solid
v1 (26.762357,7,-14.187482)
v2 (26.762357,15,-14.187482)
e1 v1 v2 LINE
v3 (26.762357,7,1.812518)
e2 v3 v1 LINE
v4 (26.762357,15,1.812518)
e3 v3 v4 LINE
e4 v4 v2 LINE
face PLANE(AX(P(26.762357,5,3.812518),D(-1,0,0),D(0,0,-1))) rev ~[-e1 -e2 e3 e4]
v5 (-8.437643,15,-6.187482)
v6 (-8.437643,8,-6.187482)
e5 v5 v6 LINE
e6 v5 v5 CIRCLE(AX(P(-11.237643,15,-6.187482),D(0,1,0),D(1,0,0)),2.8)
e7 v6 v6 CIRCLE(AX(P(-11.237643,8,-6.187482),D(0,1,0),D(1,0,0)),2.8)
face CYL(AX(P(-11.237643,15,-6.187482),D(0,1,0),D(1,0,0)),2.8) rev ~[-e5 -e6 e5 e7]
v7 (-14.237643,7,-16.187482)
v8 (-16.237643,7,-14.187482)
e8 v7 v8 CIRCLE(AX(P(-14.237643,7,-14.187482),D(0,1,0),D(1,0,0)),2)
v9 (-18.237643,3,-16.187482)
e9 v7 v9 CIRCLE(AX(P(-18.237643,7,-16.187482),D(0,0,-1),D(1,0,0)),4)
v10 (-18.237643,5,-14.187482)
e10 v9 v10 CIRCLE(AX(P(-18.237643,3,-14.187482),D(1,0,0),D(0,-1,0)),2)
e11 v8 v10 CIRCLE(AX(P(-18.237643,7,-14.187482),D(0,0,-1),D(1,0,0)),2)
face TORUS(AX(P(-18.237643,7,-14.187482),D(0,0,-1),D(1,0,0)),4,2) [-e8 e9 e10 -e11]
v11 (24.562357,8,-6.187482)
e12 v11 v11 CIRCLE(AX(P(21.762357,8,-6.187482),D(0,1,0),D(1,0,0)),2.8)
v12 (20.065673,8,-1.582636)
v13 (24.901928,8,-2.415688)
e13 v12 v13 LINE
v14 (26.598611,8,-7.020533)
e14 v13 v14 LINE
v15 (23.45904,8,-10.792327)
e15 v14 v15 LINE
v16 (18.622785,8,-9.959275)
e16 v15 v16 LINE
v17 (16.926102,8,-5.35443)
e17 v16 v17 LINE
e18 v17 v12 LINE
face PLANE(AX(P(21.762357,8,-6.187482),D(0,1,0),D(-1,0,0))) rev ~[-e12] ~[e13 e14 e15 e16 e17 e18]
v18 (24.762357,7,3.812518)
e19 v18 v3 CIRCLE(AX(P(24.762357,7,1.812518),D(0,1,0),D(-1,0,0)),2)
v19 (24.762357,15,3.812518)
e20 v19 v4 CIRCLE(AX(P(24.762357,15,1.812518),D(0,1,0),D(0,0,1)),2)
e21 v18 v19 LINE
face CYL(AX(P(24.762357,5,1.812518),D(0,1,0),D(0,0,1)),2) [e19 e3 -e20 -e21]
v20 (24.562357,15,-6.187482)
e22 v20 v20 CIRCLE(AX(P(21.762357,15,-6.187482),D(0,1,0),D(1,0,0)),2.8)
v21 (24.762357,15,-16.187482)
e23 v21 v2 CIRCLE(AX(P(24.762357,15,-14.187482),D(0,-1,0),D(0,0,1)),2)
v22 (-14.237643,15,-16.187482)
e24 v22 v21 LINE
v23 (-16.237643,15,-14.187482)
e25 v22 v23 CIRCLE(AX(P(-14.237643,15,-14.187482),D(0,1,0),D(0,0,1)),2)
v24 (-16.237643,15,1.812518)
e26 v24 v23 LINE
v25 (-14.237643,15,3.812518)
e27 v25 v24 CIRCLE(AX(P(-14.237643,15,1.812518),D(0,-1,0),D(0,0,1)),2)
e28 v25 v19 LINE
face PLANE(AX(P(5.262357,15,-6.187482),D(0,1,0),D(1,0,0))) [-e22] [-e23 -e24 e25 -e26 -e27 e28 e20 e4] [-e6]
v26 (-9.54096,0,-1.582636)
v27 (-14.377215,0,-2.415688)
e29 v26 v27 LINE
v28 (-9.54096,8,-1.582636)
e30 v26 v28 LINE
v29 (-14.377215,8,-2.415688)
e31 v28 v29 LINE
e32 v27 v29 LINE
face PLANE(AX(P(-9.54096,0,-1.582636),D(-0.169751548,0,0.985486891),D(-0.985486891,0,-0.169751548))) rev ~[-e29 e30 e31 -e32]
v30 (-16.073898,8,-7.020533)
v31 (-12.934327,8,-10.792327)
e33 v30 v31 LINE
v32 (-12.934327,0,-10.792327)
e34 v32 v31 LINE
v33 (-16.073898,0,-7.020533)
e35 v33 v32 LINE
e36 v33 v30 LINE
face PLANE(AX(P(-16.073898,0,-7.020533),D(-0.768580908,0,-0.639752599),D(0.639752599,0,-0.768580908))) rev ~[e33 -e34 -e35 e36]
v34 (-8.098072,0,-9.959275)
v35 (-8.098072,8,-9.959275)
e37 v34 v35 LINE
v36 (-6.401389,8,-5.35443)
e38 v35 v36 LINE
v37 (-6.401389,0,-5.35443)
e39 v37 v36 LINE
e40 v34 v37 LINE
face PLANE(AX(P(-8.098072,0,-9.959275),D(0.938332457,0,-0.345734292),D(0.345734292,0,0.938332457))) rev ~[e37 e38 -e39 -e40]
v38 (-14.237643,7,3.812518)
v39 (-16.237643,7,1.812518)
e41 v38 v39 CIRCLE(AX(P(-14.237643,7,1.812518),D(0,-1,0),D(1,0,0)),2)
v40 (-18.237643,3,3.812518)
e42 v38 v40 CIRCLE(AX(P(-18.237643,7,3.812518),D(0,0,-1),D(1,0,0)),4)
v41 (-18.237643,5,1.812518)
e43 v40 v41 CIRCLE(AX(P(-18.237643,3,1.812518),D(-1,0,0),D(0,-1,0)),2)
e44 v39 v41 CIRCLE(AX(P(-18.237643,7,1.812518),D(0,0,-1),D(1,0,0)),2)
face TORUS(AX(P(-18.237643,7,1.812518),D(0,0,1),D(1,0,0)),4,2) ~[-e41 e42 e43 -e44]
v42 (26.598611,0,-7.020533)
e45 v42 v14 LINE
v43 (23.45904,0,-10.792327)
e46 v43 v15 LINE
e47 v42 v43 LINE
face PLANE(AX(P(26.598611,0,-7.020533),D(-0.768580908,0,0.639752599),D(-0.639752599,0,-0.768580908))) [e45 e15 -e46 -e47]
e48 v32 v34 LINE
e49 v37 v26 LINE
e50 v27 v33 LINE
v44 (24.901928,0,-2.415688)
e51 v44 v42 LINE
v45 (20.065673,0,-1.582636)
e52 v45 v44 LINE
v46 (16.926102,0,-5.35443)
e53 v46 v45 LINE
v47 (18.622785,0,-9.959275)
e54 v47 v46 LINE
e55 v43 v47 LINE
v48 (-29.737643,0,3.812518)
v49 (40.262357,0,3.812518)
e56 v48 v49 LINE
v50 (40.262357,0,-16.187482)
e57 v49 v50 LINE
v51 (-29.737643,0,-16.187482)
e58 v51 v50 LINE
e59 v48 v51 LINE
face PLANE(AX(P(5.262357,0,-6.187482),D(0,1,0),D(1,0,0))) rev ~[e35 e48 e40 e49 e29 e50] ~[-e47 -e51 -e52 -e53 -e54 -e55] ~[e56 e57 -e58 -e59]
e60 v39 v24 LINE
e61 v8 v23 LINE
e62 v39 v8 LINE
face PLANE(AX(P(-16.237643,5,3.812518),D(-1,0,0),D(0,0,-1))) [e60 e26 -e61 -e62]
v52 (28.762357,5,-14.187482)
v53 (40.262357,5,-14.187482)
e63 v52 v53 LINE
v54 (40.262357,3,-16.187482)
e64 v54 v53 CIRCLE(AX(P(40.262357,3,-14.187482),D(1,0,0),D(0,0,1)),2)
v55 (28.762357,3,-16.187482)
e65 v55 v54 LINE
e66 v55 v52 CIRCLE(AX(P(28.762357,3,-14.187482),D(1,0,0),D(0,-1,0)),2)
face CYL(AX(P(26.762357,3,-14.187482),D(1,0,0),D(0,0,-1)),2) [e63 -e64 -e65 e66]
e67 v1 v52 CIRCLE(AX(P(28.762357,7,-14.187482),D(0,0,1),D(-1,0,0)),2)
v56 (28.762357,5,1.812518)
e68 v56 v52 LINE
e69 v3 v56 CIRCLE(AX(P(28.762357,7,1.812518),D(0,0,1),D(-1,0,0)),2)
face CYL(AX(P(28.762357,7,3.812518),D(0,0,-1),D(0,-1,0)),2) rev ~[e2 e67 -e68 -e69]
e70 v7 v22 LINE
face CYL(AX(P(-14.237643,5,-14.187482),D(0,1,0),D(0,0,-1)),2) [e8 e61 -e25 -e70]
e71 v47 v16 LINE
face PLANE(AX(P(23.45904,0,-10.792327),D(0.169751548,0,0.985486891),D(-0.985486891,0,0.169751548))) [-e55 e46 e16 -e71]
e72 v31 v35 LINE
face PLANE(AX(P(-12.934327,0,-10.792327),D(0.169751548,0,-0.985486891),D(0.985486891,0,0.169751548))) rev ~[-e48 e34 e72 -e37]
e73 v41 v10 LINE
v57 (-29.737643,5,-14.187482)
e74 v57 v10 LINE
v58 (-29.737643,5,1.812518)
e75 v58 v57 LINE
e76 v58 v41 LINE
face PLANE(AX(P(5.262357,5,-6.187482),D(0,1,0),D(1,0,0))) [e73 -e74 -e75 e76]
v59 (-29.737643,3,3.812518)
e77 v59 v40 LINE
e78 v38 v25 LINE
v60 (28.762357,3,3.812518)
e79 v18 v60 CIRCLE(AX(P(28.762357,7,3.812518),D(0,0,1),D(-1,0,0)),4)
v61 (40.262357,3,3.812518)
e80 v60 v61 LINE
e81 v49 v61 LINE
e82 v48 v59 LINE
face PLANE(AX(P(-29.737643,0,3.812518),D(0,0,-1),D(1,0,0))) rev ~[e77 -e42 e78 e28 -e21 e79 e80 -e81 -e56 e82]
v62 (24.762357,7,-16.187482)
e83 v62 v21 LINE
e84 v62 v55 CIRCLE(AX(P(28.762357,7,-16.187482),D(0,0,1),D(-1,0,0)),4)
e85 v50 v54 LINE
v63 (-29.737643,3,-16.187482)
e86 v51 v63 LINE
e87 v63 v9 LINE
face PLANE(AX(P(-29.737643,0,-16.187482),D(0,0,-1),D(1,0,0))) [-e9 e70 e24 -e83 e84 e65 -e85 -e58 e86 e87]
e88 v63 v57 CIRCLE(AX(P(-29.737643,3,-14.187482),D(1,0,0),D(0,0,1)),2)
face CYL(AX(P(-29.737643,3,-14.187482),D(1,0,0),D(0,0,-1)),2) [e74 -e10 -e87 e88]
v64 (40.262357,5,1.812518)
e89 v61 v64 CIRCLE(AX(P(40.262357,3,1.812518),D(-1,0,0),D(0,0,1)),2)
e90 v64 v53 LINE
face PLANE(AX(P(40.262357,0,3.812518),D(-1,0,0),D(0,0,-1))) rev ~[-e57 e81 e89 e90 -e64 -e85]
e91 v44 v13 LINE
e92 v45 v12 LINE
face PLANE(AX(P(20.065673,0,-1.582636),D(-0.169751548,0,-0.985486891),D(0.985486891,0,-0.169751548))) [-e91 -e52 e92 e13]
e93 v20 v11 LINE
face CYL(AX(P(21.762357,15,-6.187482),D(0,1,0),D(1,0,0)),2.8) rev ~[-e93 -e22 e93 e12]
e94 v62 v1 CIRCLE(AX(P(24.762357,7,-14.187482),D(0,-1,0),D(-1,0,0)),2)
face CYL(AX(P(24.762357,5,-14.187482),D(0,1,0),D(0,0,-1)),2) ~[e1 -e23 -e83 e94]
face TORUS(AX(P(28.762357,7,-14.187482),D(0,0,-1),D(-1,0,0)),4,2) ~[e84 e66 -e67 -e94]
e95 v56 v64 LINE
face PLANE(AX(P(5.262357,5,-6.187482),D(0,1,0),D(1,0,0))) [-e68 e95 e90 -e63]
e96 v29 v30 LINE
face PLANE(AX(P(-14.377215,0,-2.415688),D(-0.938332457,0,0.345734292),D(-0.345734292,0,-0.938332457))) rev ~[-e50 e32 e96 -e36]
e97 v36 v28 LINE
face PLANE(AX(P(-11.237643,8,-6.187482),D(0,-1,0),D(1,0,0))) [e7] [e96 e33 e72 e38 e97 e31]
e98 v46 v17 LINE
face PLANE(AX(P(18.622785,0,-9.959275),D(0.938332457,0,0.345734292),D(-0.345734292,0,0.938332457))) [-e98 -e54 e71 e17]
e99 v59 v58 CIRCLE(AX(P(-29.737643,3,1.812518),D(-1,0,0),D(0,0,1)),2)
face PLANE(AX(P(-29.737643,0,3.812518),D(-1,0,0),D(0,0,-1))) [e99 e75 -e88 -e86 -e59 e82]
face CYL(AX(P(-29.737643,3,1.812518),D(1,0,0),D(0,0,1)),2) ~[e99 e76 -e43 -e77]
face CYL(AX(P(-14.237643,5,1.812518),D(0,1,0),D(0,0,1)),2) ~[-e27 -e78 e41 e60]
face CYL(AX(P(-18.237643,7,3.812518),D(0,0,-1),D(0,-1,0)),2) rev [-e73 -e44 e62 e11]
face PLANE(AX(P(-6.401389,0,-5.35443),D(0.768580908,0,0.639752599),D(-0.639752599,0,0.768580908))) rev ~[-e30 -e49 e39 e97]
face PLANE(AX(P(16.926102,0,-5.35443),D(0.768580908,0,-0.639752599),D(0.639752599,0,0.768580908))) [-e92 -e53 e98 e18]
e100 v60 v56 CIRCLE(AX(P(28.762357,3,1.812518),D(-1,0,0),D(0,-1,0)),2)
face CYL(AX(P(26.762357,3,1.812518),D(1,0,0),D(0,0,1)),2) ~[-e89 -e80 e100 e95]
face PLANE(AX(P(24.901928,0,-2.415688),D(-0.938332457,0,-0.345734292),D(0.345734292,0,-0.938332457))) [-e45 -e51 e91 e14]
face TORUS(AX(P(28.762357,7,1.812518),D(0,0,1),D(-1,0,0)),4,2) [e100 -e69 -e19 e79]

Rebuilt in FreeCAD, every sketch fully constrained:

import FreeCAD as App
import Part
import Sketcher


def edges_at(feature, points):
    """Names of the edges that pass closest to the given points."""
    edges = feature.Shape.Edges
    near = lambda p: min(range(len(edges)), key=lambda i: edges[i].distToShape(Part.Vertex(*p))[0])
    return sorted({f"Edge{near(p) + 1}" for p in points})


def add_polygon(sketch, points):
    """Adds a closed chain of lines whose ends are joined by coincident constraints."""
    first, n = sketch.GeometryCount, len(points)
    for a, b in zip(points, points[1:] + points[:1]):
        sketch.addGeometry(Part.LineSegment(App.Vector(*a, 0), App.Vector(*b, 0)), False)
    for i in range(n):
        sketch.addConstraint(Sketcher.Constraint("Coincident", first + i, 2, first + (i + 1) % n, 1))

doc = App.newDocument("Part")
body = doc.addObject("PartDesign::Body", "Body")

# Sketch on XZ plane
sketch1 = doc.addObject("Sketcher::SketchObject", "Sketch")
body.addObject(sketch1)
sketch1.AttachmentSupport = (doc.XZ_Plane, [""])
sketch1.MapMode = "FlatFace"
add_polygon(sketch1, [(-30, -16), (-30, 4), (40, 4), (40, -16)])  # lines 0-3
sketch1.addConstraint(Sketcher.Constraint("Vertical", 0))
sketch1.addConstraint(Sketcher.Constraint("Horizontal", 1))
sketch1.addConstraint(Sketcher.Constraint("Vertical", 2))
sketch1.addConstraint(Sketcher.Constraint("Horizontal", 3))
sketch1.addConstraint(Sketcher.Constraint("DistanceX", 1, 1, 1, 2, 70.0))
sketch1.addConstraint(Sketcher.Constraint("DistanceY", 0, 1, 0, 2, 20.0))
sketch1.addConstraint(Sketcher.Constraint("DistanceY", -1, 1, 0, 2, 3.812518))
sketch1.addConstraint(Sketcher.Constraint("DistanceX", 0, 2, -1, 1, 29.737643))
pad1 = doc.addObject("PartDesign::Pad", "Pad")
body.addObject(pad1)
pad1.Profile = sketch1
pad1.Length = 5
pad1.Reversed = True

# Sketch on XZ plane
sketch2 = doc.addObject("Sketcher::SketchObject", "Sketch001")
body.addObject(sketch2)
sketch2.AttachmentSupport = (doc.XZ_Plane, [""])
sketch2.MapMode = "FlatFace"
sketch2.AttachmentOffset = App.Placement(App.Vector(0, 0, -5), App.Rotation())
add_polygon(sketch2, [(-16, -16), (-16, 4), (27, 4), (27, -16)])  # lines 0-3
sketch2.addConstraint(Sketcher.Constraint("Vertical", 0))
sketch2.addConstraint(Sketcher.Constraint("Horizontal", 1))
sketch2.addConstraint(Sketcher.Constraint("Vertical", 2))
sketch2.addConstraint(Sketcher.Constraint("Horizontal", 3))
sketch2.addConstraint(Sketcher.Constraint("DistanceX", 1, 1, 1, 2, 43.0))
sketch2.addConstraint(Sketcher.Constraint("DistanceY", 0, 1, 0, 2, 20.0))
sketch2.addConstraint(Sketcher.Constraint("DistanceY", -1, 1, 0, 2, 3.812518))
sketch2.addConstraint(Sketcher.Constraint("DistanceX", 0, 2, -1, 1, 16.237643))
pad2 = doc.addObject("PartDesign::Pad", "Pad001")
body.addObject(pad2)
pad2.Profile = sketch2
pad2.Length = 10
pad2.Reversed = True
doc.recompute()

fillet = doc.addObject("PartDesign::Fillet", "Fillet")
body.addObject(fillet)
fillet.Base = (pad2, edges_at(pad2, [
    (-22.988, 5, 3.813),
    (-22.988, 5, -16.187),
    (33.512, 5, 3.813),
    (26.762, 5, -6.187),
    (26.762, 10, 3.813),
    (26.762, 10, -16.187),
    (-16.238, 5, -6.187),
    (-16.238, 10, -16.187),
    (-16.238, 10, 3.813),
    (33.512, 5, -16.187),
]))
fillet.Radius = 2

# Sketch on XZ plane
sketch3 = doc.addObject("Sketcher::SketchObject", "Sketch002")
body.addObject(sketch3)
sketch3.AttachmentSupport = (doc.XZ_Plane, [""])
sketch3.MapMode = "FlatFace"
sketch3.AttachmentOffset = App.Placement(App.Vector(0, 0, -15), App.Rotation())
sketch3.addGeometry(Part.Circle(App.Vector(21.8, -6.2, 0), App.Vector(0, 0, 1), 2.8), False)
sketch3.addGeometry(Part.Circle(App.Vector(-11.2, -6.2, 0), App.Vector(0, 0, 1), 2.8), False)
sketch3.addConstraint(Sketcher.Constraint("Equal", 0, 1))
sketch3.addConstraint(Sketcher.Constraint("Horizontal", 0, 3, 1, 3))
sketch3.addConstraint(Sketcher.Constraint("Diameter", 0, 5.6))
sketch3.addConstraint(Sketcher.Constraint("DistanceX", 1, 3, 0, 3, 33.0))
sketch3.addConstraint(Sketcher.Constraint("DistanceY", 0, 3, -1, 1, 6.187482))
sketch3.addConstraint(Sketcher.Constraint("DistanceX", -1, 1, 0, 3, 21.762357))
pocket1 = doc.addObject("PartDesign::Pocket", "Pocket")
body.addObject(pocket1)
pocket1.Profile = sketch3
pocket1.Type = "ThroughAll"
pocket1.Reversed = True

# Sketch on XZ plane
sketch4 = doc.addObject("Sketcher::SketchObject", "Sketch003")
body.addObject(sketch4)
sketch4.AttachmentSupport = (doc.XZ_Plane, [""])
sketch4.MapMode = "FlatFace"
add_polygon(sketch4, [(-8.1, -10), (-6.4, -5.4), (-9.5, -1.6), (-14.4, -2.4), (-16.1, -7), (-12.9, -10.8)])  # lines 0-5
add_polygon(sketch4, [(18.6, -10), (23.5, -10.8), (26.6, -7), (24.9, -2.4), (20.1, -1.6), (16.9, -5.4)])  # lines 6-11
sketch4.addConstraint(Sketcher.Constraint("Parallel", 0, 3))
sketch4.addConstraint(Sketcher.Constraint("Parallel", 1, 4))
sketch4.addConstraint(Sketcher.Constraint("Parallel", 2, 5))
sketch4.addConstraint(Sketcher.Constraint("Parallel", 6, 9))
sketch4.addConstraint(Sketcher.Constraint("Parallel", 7, 10))
sketch4.addConstraint(Sketcher.Constraint("Parallel", 8, 11))
sketch4.addConstraint(Sketcher.Constraint("Horizontal", 4, 2, 6, 2))
sketch4.addConstraint(Sketcher.Constraint("Horizontal", 3, 2, 7, 2))
sketch4.addConstraint(Sketcher.Constraint("Horizontal", 2, 2, 8, 2))
sketch4.addConstraint(Sketcher.Constraint("Horizontal", 1, 2, 9, 2))
sketch4.addConstraint(Sketcher.Constraint("Horizontal", 0, 2, 10, 2))
sketch4.addConstraint(Sketcher.Constraint("Equal", 0, 1))
sketch4.addConstraint(Sketcher.Constraint("Equal", 1, 2))
sketch4.addConstraint(Sketcher.Constraint("Equal", 2, 3))
sketch4.addConstraint(Sketcher.Constraint("Equal", 5, 6))
sketch4.addConstraint(Sketcher.Constraint("Equal", 6, 7))
sketch4.addConstraint(Sketcher.Constraint("Equal", 7, 8))
sketch4.addConstraint(Sketcher.Constraint("DistanceX", 1, 2, 6, 2, 33.0))
sketch4.addConstraint(Sketcher.Constraint("DistanceX", 0, 2, -1, 1, 6.401389))
sketch4.addConstraint(Sketcher.Constraint("DistanceY", 0, 2, -1, 1, 5.35443))
sketch4.addConstraint(Sketcher.Constraint("DistanceX", 1, 2, -1, 1, 9.54096))
sketch4.addConstraint(Sketcher.Constraint("DistanceY", 2, 2, -1, 1, 2.415688))
sketch4.addConstraint(Sketcher.Constraint("DistanceY", 2, 2, 1, 2, 0.833052))
sketch4.addConstraint(Sketcher.Constraint("DistanceX", 3, 2, 0, 2, 9.672509))
pocket2 = doc.addObject("PartDesign::Pocket", "Pocket001")
body.addObject(pocket2)
pocket2.Profile = sketch4
pocket2.Length = 8

doc.recompute()
